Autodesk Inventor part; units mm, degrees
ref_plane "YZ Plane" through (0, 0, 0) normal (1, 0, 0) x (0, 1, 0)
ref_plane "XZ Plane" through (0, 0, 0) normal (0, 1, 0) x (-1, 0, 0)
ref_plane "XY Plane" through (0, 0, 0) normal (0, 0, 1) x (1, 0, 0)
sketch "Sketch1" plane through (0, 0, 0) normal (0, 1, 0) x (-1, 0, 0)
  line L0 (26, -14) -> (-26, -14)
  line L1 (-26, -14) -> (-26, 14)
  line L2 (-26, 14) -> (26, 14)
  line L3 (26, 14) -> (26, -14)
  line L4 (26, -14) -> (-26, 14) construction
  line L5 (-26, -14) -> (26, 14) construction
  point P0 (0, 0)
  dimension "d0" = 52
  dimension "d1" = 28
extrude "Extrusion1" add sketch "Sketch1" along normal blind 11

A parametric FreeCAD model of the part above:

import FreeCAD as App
import Part
import Sketcher
Q = App.Units.Quantity

doc = App.newDocument("Part")
params = doc.addObject("Spreadsheet::Sheet", "Params")
for row, (alias, value) in enumerate([
    ("sketch1_width", "52 mm"),
    ("sketch1_height", "28 mm"),
    ("pad1_length", "11 mm"),
], start=1):
    params.set(f"A{row}", alias)
    params.set(f"B{row}", "=" + value)
    params.setAlias(f"B{row}", alias)

body = doc.addObject("PartDesign::Body", "Body")

# Sketch on XZ plane
sketch1 = body.newObject("Sketcher::SketchObject", "Sketch")
sketch1.AttachmentSupport = (doc.getObject("XZ_Plane"), [""])
sketch1.MapMode = "FlatFace"
sketch1.addGeometry(Part.LineSegment(App.Vector(26, -14, 0), App.Vector(-26, -14, 0)), False)
sketch1.addGeometry(Part.LineSegment(App.Vector(-26, -14, 0), App.Vector(-26, 14, 0)), False)
sketch1.addGeometry(Part.LineSegment(App.Vector(-26, 14, 0), App.Vector(26, 14, 0)), False)
sketch1.addGeometry(Part.LineSegment(App.Vector(26, 14, 0), App.Vector(26, -14, 0)), False)
sketch1.addConstraint(Sketcher.Constraint("Coincident", 0, 2, 1, 1))
sketch1.addConstraint(Sketcher.Constraint("Coincident", 1, 2, 2, 1))
sketch1.addConstraint(Sketcher.Constraint("Coincident", 2, 2, 3, 1))
sketch1.addConstraint(Sketcher.Constraint("Coincident", 3, 2, 0, 1))
sketch1.addConstraint(Sketcher.Constraint("Horizontal", 0))
sketch1.addConstraint(Sketcher.Constraint("Vertical", 1))
sketch1.addConstraint(Sketcher.Constraint("Horizontal", 2))
sketch1.addConstraint(Sketcher.Constraint("Vertical", 3))
sketch1.addConstraint(Sketcher.Constraint("Symmetric", 0, 2, 2, 2, -1, 1))
sketch1.addConstraint(Sketcher.Constraint("DistanceX", 0, 2, 0, 1, Q("52 mm")))
sketch1.addConstraint(Sketcher.Constraint("DistanceY", 1, 1, 1, 2, Q("28 mm")))
sketch1.setExpression("Constraints[9]", "Params.sketch1_width")
sketch1.setExpression("Constraints[10]", "Params.sketch1_height")
pad1 = body.newObject("PartDesign::Pad", "Pad")
pad1.Profile = sketch1
pad1.setExpression("Length", "Params.pad1_length")
pad1.Reversed = True

doc.recompute()
